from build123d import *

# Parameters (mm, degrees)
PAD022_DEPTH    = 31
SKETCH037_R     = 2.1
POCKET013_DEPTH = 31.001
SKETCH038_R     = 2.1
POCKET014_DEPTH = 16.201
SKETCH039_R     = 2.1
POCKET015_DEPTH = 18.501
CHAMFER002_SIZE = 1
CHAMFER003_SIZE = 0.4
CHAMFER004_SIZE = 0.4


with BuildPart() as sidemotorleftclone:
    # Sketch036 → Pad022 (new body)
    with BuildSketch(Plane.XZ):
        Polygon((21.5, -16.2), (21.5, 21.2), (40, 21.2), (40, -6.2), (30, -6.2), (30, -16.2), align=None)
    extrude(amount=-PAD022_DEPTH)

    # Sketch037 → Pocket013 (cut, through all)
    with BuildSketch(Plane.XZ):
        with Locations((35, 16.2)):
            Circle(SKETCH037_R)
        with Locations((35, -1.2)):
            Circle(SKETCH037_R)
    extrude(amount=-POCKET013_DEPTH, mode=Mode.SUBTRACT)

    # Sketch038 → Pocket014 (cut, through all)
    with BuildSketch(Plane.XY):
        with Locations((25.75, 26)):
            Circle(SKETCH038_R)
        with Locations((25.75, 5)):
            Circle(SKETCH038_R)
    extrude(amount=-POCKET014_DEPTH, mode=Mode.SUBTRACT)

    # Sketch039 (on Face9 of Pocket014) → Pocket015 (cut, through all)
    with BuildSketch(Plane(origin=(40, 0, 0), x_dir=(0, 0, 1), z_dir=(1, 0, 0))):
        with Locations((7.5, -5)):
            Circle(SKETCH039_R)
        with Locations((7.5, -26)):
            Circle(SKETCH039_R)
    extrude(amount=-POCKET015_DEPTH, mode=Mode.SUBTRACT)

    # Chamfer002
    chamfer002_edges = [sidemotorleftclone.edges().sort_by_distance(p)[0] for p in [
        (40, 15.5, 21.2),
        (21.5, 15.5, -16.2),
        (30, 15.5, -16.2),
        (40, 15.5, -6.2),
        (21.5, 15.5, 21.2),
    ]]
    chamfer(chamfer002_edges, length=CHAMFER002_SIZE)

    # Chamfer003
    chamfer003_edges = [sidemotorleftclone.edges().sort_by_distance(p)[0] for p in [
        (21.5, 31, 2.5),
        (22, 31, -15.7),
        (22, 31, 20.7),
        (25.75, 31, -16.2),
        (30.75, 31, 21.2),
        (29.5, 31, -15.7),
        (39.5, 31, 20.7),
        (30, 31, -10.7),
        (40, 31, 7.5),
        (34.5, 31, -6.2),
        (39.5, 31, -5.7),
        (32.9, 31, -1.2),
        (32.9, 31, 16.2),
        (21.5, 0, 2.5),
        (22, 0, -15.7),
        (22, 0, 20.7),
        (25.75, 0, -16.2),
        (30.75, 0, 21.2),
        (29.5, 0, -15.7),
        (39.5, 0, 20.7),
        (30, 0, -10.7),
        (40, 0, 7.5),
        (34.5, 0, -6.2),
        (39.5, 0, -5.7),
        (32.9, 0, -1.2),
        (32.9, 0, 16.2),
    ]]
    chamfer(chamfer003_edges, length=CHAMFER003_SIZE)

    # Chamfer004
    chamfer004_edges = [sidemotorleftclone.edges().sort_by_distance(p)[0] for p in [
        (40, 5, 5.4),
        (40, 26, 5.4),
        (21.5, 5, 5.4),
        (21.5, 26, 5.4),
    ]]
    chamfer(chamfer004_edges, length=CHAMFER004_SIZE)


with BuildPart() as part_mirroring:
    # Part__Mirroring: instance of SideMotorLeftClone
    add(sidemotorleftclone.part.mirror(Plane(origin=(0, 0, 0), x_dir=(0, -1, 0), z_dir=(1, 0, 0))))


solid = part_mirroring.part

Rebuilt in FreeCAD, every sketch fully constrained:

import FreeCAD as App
import Part
import Sketcher
from FreeCAD import Vector
Q = App.Units.Quantity


def edges_at(feature, points):
    """Names of the edges that pass closest to the given points."""
    edges = feature.Shape.Edges
    near = lambda p: min(range(len(edges)), key=lambda i: edges[i].distToShape(Part.Vertex(*p))[0])
    return sorted({f"Edge{near(p) + 1}" for p in points})


def add_polygon(sketch, points):
    """Adds a closed chain of lines whose ends are joined by coincident constraints."""
    first, n = sketch.GeometryCount, len(points)
    for a, b in zip(points, points[1:] + points[:1]):
        sketch.addGeometry(Part.LineSegment(App.Vector(*a, 0), App.Vector(*b, 0)), False)
    for i in range(n):
        sketch.addConstraint(Sketcher.Constraint("Coincident", first + i, 2, first + (i + 1) % n, 1))

doc = App.newDocument("Part")
params = doc.addObject("Spreadsheet::Sheet", "Params")
for row, (alias, value) in enumerate([
    ("sketch1_width", "10 mm"),
    ("sketch1_width2", "8.5 mm"),
    ("sketch1_height", "37.4 mm"),
    ("pad1_length", "31 mm"),
    ("sketch2_diameter", "4.2 mm"),
    ("sketch3_diameter", "4.2 mm"),
    ("sketch4_diameter", "4.2 mm"),
    ("chamfer_size", "1 mm"),
    ("chamfer2_size", "0.4 mm"),
    ("chamfer3_size", "0.4 mm"),
], start=1):
    params.set(f"A{row}", alias)
    params.set(f"B{row}", "=" + value)
    params.setAlias(f"B{row}", alias)

body = doc.addObject("PartDesign::Body", "Body")

sketch1 = doc.addObject("Sketcher::SketchObject", "Sketch")
body.addObject(sketch1)
sketch1.AttachmentSupport = (doc.XZ_Plane, [""])
sketch1.MapMode = "FlatFace"
add_polygon(sketch1, [(22, 21), (22, -16), (30, -16), (30, -6), (40, -6), (40, 21)])
sketch1.addConstraint(Sketcher.Constraint("Vertical", 0))
sketch1.addConstraint(Sketcher.Constraint("Horizontal", 1))
sketch1.addConstraint(Sketcher.Constraint("Vertical", 2))
sketch1.addConstraint(Sketcher.Constraint("Horizontal", 3))
sketch1.addConstraint(Sketcher.Constraint("Vertical", 4))
sketch1.addConstraint(Sketcher.Constraint("Horizontal", 5))
sketch1.addConstraint(Sketcher.Constraint("Equal", 3, 2))
sketch1.addConstraint(Sketcher.Constraint("DistanceX", 3, 1, 3, 2, Q("10 mm")))
sketch1.addConstraint(Sketcher.Constraint("DistanceX", 1, 1, 1, 2, Q("8.5 mm")))
sketch1.addConstraint(Sketcher.Constraint("DistanceY", 0, 2, 0, 1, Q("37.4 mm")))
sketch1.addConstraint(Sketcher.Constraint("DistanceX", -1, 1, 1, 2, Q("30 mm")))
sketch1.addConstraint(Sketcher.Constraint("DistanceY", 0, 2, -1, 1, Q("16.2 mm")))
sketch1.setExpression("Constraints[13]", "Params.sketch1_width")
sketch1.setExpression("Constraints[14]", "Params.sketch1_width2")
sketch1.setExpression("Constraints[15]", "Params.sketch1_height")
pad1 = doc.addObject("PartDesign::Pad", "Pad")
body.addObject(pad1)
pad1.Profile = sketch1
pad1.setExpression("Length", "Params.pad1_length")
pad1.Reversed = True

sketch2 = doc.addObject("Sketcher::SketchObject", "Sketch001")
body.addObject(sketch2)
sketch2.AttachmentSupport = (doc.XZ_Plane, [""])
sketch2.MapMode = "FlatFace"
sketch2.addGeometry(Part.Circle(Vector(35, 16.2, 0), Vector(0, 0, 1), 2.1), False)
sketch2.addGeometry(Part.Circle(Vector(35, -1.2, 0), Vector(0, 0, 1), 2.1), False)
sketch2.addConstraint(Sketcher.Constraint("Equal", 0, 1))
sketch2.addConstraint(Sketcher.Constraint("Vertical", 0, 3, 1, 3))
sketch2.addConstraint(Sketcher.Constraint("Diameter", 0, Q("4.2 mm")))
sketch2.addConstraint(Sketcher.Constraint("DistanceX", -1, 1, 0, 3, Q("35 mm")))
sketch2.addConstraint(Sketcher.Constraint("DistanceY", -1, 1, 0, 3, Q("16.2 mm")))
sketch2.addConstraint(Sketcher.Constraint("DistanceY", 1, 3, -1, 1, Q("1.2 mm")))
sketch2.setExpression("Constraints[2]", "Params.sketch2_diameter")
pocket1 = doc.addObject("PartDesign::Pocket", "Pocket")
body.addObject(pocket1)
pocket1.Profile = sketch2
pocket1.Type = "ThroughAll"

sketch3 = doc.addObject("Sketcher::SketchObject", "Sketch002")
body.addObject(sketch3)
sketch3.AttachmentSupport = (doc.XY_Plane, [""])
sketch3.MapMode = "FlatFace"
sketch3.addGeometry(Part.Circle(Vector(25.8, 26, 0), Vector(0, 0, 1), 2.1), False)
sketch3.addGeometry(Part.Circle(Vector(25.8, 5, 0), Vector(0, 0, 1), 2.1), False)
sketch3.addConstraint(Sketcher.Constraint("Equal", 0, 1))
sketch3.addConstraint(Sketcher.Constraint("Vertical", 0, 3, 1, 3))
sketch3.addConstraint(Sketcher.Constraint("Diameter", 0, Q("4.2 mm")))
sketch3.addConstraint(Sketcher.Constraint("DistanceY", -1, 1, 0, 3, Q("26 mm")))
sketch3.addConstraint(Sketcher.Constraint("DistanceY", -1, 1, 1, 3, Q("5 mm")))
sketch3.addConstraint(Sketcher.Constraint("DistanceX", -1, 1, 0, 3, Q("25.75 mm")))
sketch3.setExpression("Constraints[2]", "Params.sketch3_diameter")
pocket2 = doc.addObject("PartDesign::Pocket", "Pocket001")
body.addObject(pocket2)
pocket2.Profile = sketch3
pocket2.Type = "ThroughAll"

sketch4 = doc.addObject("Sketcher::SketchObject", "Sketch003")
body.addObject(sketch4)
sketch4.AttachmentSupport = (doc.YZ_Plane, [""])
sketch4.MapMode = "FlatFace"
sketch4.AttachmentOffset = App.Placement(Vector(0, 0, 40), App.Rotation())
sketch4.addGeometry(Part.Circle(Vector(5, 7.5, 0), Vector(0, 0, 1), 2.1), False)
sketch4.addGeometry(Part.Circle(Vector(26, 7.5, 0), Vector(0, 0, 1), 2.1), False)
sketch4.addConstraint(Sketcher.Constraint("Equal", 0, 1))
sketch4.addConstraint(Sketcher.Constraint("Horizontal", 0, 3, 1, 3))
sketch4.addConstraint(Sketcher.Constraint("Diameter", 0, Q("4.2 mm")))
sketch4.addConstraint(Sketcher.Constraint("DistanceX", -1, 1, 0, 3, Q("5 mm")))
sketch4.addConstraint(Sketcher.Constraint("DistanceX", -1, 1, 1, 3, Q("26 mm")))
sketch4.addConstraint(Sketcher.Constraint("DistanceY", -1, 1, 0, 3, Q("7.5 mm")))
sketch4.setExpression("Constraints[2]", "Params.sketch4_diameter")
pocket3 = doc.addObject("PartDesign::Pocket", "Pocket002")
body.addObject(pocket3)
pocket3.Profile = sketch4
pocket3.Type = "ThroughAll"
doc.recompute()

chamfer = doc.addObject("PartDesign::Chamfer", "Chamfer")
body.addObject(chamfer)
chamfer.Base = (pocket3, edges_at(pocket3, [
    (40, 15.5, 21.2),
    (21.5, 15.5, -16.2),
    (30, 15.5, -16.2),
    (40, 15.5, -6.2),
    (21.5, 15.5, 21.2),
]))
chamfer.setExpression("Size", "Params.chamfer_size")
doc.recompute()

chamfer2 = doc.addObject("PartDesign::Chamfer", "Chamfer001")
body.addObject(chamfer2)
chamfer2.Base = (chamfer, edges_at(chamfer, [
    (21.5, 31, 2.5),
    (22, 31, -15.7),
    (22, 31, 20.7),
    (25.75, 31, -16.2),
    (30.75, 31, 21.2),
    (29.5, 31, -15.7),
    (39.5, 31, 20.7),
    (30, 31, -10.7),
    (40, 31, 7.5),
    (34.5, 31, -6.2),
    (39.5, 31, -5.7),
    (32.9, 31, -1.2),
    (32.9, 31, 16.2),
    (21.5, 0, 2.5),
    (22, 0, -15.7),
    (22, 0, 20.7),
    (25.75, 0, -16.2),
    (30.75, 0, 21.2),
    (29.5, 0, -15.7),
    (39.5, 0, 20.7),
    (30, 0, -10.7),
    (40, 0, 7.5),
    (34.5, 0, -6.2),
    (39.5, 0, -5.7),
    (32.9, 0, -1.2),
    (32.9, 0, 16.2),
]))
chamfer2.setExpression("Size", "Params.chamfer2_size")
doc.recompute()

chamfer3 = doc.addObject("PartDesign::Chamfer", "Chamfer002")
body.addObject(chamfer3)
chamfer3.Base = (chamfer2, edges_at(chamfer2, [
    (40, 5, 5.4),
    (40, 26, 5.4),
    (21.5, 5, 5.4),
    (21.5, 26, 5.4),
]))
chamfer3.setExpression("Size", "Params.chamfer3_size")
body2 = doc.addObject("PartDesign::Body", "Body001")
doc.recompute()

mirroring = doc.addObject("Part::Mirroring", "Mirroring")
mirroring.Source = body
mirroring.Base = Vector(0, 0, 0)
mirroring.Normal = Vector(1, 0, 0)
body2.BaseFeature = mirroring
doc.recompute()
body.Visibility = False
mirroring.Visibility = False

doc.recompute()
